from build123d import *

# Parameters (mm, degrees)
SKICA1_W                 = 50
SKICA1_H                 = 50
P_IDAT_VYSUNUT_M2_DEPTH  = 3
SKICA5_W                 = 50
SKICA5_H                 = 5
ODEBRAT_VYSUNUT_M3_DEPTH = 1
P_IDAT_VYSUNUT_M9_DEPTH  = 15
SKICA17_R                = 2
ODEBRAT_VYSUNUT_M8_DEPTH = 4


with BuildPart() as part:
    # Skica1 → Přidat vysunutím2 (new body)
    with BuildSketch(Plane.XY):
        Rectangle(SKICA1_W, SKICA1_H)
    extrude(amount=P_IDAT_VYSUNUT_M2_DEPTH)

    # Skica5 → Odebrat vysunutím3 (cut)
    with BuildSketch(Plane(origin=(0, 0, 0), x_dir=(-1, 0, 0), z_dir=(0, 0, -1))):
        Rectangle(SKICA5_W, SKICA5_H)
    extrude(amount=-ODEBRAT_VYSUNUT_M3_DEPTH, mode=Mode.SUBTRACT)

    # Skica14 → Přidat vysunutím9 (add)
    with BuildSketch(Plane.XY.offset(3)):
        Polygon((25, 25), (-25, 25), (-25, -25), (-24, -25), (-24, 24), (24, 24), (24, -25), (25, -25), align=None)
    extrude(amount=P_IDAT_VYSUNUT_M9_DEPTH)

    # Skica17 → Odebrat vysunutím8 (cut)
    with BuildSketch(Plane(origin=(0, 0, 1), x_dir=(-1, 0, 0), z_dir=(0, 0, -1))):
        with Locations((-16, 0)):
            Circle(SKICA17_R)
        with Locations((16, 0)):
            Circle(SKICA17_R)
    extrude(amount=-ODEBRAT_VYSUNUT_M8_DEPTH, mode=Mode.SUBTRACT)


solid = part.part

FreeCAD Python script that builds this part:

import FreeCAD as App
import Part
import Sketcher

V = App.Vector
Q = App.Units.Quantity

doc = App.newDocument("Part")
params = doc.addObject("Spreadsheet::Sheet", "Params")
for row, (alias, value) in enumerate([
    ("sketch1_width", "50 mm"),
    ("pad1_length", "3 mm"),
    ("sketch2_width", "50 mm"),
    ("sketch2_height", "5 mm"),
    ("pocket1_length", "1 mm"),
    ("sketch3_width", "50 mm"),
    ("sketch3_width2", "1 mm"),
    ("sketch3_height", "49 mm"),
    ("pad2_length", "15 mm"),
    ("sketch4_diameter", "4 mm"),
    ("pocket2_length", "4 mm"),
], start=1):
    params.set(f"A{row}", alias)
    params.set(f"B{row}", "=" + value)
    params.setAlias(f"B{row}", alias)

body = doc.addObject("PartDesign::Body", "Body")

# Sketch on XY plane
sketch1 = body.newObject("Sketcher::SketchObject", "Sketch")
sketch1.AttachmentSupport = (doc.getObject("XY_Plane"), [""])
sketch1.MapMode = "FlatFace"
sketch1.addGeometry([
    Part.LineSegment(V(-25, 25, 0), V(-25, -25, 0)),
    Part.LineSegment(V(-25, -25, 0), V(25, -25, 0)),
    Part.LineSegment(V(25, -25, 0), V(25, 25, 0)),
    Part.LineSegment(V(25, 25, 0), V(-25, 25, 0)),
], False)
sketch1.addConstraint([
    Sketcher.Constraint("Coincident", 0, 2, 1, 1),
    Sketcher.Constraint("Coincident", 1, 2, 2, 1),
    Sketcher.Constraint("Coincident", 2, 2, 3, 1),
    Sketcher.Constraint("Coincident", 3, 2, 0, 1),
    Sketcher.Constraint("Vertical", 0),
    Sketcher.Constraint("Horizontal", 1),
    Sketcher.Constraint("Vertical", 2),
    Sketcher.Constraint("Horizontal", 3),
    Sketcher.Constraint("Symmetric", 0, 2, 2, 2, -1, 1),
    Sketcher.Constraint("Equal", 3, 0),
    Sketcher.Constraint("DistanceX", 1, 1, 1, 2, Q("50 mm")),
])
sketch1.setExpression("Constraints[10]", "Params.sketch1_width")
pad1 = body.newObject("PartDesign::Pad", "Pad")
pad1.Profile = sketch1
pad1.setExpression("Length", "Params.pad1_length")

# Sketch on XY plane
sketch2 = body.newObject("Sketcher::SketchObject", "Sketch001")
sketch2.AttachmentSupport = (doc.getObject("XY_Plane"), [""])
sketch2.MapMode = "FlatFace"
sketch2.addGeometry([
    Part.LineSegment(V(25, 2, 0), V(25, -2, 0)),
    Part.LineSegment(V(25, -2, 0), V(-25, -2, 0)),
    Part.LineSegment(V(-25, -2, 0), V(-25, 2, 0)),
    Part.LineSegment(V(-25, 2, 0), V(25, 2, 0)),
], False)
sketch2.addConstraint([
    Sketcher.Constraint("Coincident", 0, 2, 1, 1),
    Sketcher.Constraint("Coincident", 1, 2, 2, 1),
    Sketcher.Constraint("Coincident", 2, 2, 3, 1),
    Sketcher.Constraint("Coincident", 3, 2, 0, 1),
    Sketcher.Constraint("Vertical", 0),
    Sketcher.Constraint("Horizontal", 1),
    Sketcher.Constraint("Vertical", 2),
    Sketcher.Constraint("Horizontal", 3),
    Sketcher.Constraint("Symmetric", 0, 2, 2, 2, -1, 1),
    Sketcher.Constraint("DistanceX", 1, 2, 1, 1, Q("50 mm")),
    Sketcher.Constraint("DistanceY", 0, 2, 0, 1, Q("5 mm")),
])
sketch2.setExpression("Constraints[9]", "Params.sketch2_width")
sketch2.setExpression("Constraints[10]", "Params.sketch2_height")
pocket1 = body.newObject("PartDesign::Pocket", "Pocket")
pocket1.Profile = sketch2
pocket1.setExpression("Length", "Params.pocket1_length")
pocket1.Reversed = True

# Sketch on XY plane
sketch3 = body.newObject("Sketcher::SketchObject", "Sketch002")
sketch3.AttachmentSupport = (doc.getObject("XY_Plane"), [""])
sketch3.MapMode = "FlatFace"
sketch3.AttachmentOffset = App.Placement(V(0, 0, 3), App.Rotation())
sketch3.addGeometry([
    Part.LineSegment(V(25, 25, 0), V(-25, 25, 0)),  # 0
    Part.LineSegment(V(-25, 25, 0), V(-25, -25, 0)),  # 1
    Part.LineSegment(V(-25, -25, 0), V(-24, -25, 0)),  # 2
    Part.LineSegment(V(-24, -25, 0), V(-24, 24, 0)),  # 3
    Part.LineSegment(V(-24, 24, 0), V(24, 24, 0)),  # 4
    Part.LineSegment(V(24, 24, 0), V(24, -25, 0)),  # 5
    Part.LineSegment(V(24, -25, 0), V(25, -25, 0)),  # 6
    Part.LineSegment(V(25, -25, 0), V(25, 25, 0)),  # 7
], False)
sketch3.addConstraint([
    Sketcher.Constraint("Coincident", 0, 2, 1, 1),
    Sketcher.Constraint("Coincident", 1, 2, 2, 1),
    Sketcher.Constraint("Coincident", 2, 2, 3, 1),
    Sketcher.Constraint("Coincident", 3, 2, 4, 1),
    Sketcher.Constraint("Coincident", 4, 2, 5, 1),
    Sketcher.Constraint("Coincident", 5, 2, 6, 1),
    Sketcher.Constraint("Coincident", 6, 2, 7, 1),
    Sketcher.Constraint("Coincident", 7, 2, 0, 1),
    Sketcher.Constraint("Horizontal", 0),
    Sketcher.Constraint("Vertical", 1),
    Sketcher.Constraint("Horizontal", 2),
    Sketcher.Constraint("Vertical", 3),
    Sketcher.Constraint("Horizontal", 4),
    Sketcher.Constraint("Vertical", 5),
    Sketcher.Constraint("Horizontal", 6),
    Sketcher.Constraint("Vertical", 7),
    Sketcher.Constraint("Symmetric", 0, 2, 6, 2, -1, 1),
    Sketcher.Constraint("Symmetric", 2, 2, 5, 2, -2),
    Sketcher.Constraint("Equal", 0, 1),
    Sketcher.Constraint("DistanceX", 0, 2, 0, 1, Q("50 mm")),
    Sketcher.Constraint("DistanceX", 2, 1, 2, 2, Q("1 mm")),
    Sketcher.Constraint("DistanceY", 3, 1, 3, 2, Q("49 mm")),
])
sketch3.setExpression("Constraints[19]", "Params.sketch3_width")
sketch3.setExpression("Constraints[20]", "Params.sketch3_width2")
sketch3.setExpression("Constraints[21]", "Params.sketch3_height")
pad2 = body.newObject("PartDesign::Pad", "Pad001")
pad2.Profile = sketch3
pad2.setExpression("Length", "Params.pad2_length")

# Sketch on XY plane
sketch4 = body.newObject("Sketcher::SketchObject", "Sketch003")
sketch4.AttachmentSupport = (doc.getObject("XY_Plane"), [""])
sketch4.MapMode = "FlatFace"
sketch4.AttachmentOffset = App.Placement(V(0, 0, 1), App.Rotation())
sketch4.addGeometry([
    Part.Circle(V(16, 0, 0), V(0, 0, 1), 2),
    Part.Circle(V(-16, 0, 0), V(0, 0, 1), 2),
], False)
sketch4.addConstraint([
    Sketcher.Constraint("Equal", 0, 1),
    Sketcher.Constraint("Symmetric", 0, 3, 1, 3, -1, 1),
    Sketcher.Constraint("PointOnObject", 0, 3, -1),
    Sketcher.Constraint("Diameter", 0, Q("4 mm")),
    Sketcher.Constraint("DistanceX", -1, 1, 0, 3, Q("16 mm")),
])
sketch4.setExpression("Constraints[3]", "Params.sketch4_diameter")
pocket2 = body.newObject("PartDesign::Pocket", "Pocket001")
pocket2.Profile = sketch4
pocket2.setExpression("Length", "Params.pocket2_length")
pocket2.Reversed = True

doc.recompute()
